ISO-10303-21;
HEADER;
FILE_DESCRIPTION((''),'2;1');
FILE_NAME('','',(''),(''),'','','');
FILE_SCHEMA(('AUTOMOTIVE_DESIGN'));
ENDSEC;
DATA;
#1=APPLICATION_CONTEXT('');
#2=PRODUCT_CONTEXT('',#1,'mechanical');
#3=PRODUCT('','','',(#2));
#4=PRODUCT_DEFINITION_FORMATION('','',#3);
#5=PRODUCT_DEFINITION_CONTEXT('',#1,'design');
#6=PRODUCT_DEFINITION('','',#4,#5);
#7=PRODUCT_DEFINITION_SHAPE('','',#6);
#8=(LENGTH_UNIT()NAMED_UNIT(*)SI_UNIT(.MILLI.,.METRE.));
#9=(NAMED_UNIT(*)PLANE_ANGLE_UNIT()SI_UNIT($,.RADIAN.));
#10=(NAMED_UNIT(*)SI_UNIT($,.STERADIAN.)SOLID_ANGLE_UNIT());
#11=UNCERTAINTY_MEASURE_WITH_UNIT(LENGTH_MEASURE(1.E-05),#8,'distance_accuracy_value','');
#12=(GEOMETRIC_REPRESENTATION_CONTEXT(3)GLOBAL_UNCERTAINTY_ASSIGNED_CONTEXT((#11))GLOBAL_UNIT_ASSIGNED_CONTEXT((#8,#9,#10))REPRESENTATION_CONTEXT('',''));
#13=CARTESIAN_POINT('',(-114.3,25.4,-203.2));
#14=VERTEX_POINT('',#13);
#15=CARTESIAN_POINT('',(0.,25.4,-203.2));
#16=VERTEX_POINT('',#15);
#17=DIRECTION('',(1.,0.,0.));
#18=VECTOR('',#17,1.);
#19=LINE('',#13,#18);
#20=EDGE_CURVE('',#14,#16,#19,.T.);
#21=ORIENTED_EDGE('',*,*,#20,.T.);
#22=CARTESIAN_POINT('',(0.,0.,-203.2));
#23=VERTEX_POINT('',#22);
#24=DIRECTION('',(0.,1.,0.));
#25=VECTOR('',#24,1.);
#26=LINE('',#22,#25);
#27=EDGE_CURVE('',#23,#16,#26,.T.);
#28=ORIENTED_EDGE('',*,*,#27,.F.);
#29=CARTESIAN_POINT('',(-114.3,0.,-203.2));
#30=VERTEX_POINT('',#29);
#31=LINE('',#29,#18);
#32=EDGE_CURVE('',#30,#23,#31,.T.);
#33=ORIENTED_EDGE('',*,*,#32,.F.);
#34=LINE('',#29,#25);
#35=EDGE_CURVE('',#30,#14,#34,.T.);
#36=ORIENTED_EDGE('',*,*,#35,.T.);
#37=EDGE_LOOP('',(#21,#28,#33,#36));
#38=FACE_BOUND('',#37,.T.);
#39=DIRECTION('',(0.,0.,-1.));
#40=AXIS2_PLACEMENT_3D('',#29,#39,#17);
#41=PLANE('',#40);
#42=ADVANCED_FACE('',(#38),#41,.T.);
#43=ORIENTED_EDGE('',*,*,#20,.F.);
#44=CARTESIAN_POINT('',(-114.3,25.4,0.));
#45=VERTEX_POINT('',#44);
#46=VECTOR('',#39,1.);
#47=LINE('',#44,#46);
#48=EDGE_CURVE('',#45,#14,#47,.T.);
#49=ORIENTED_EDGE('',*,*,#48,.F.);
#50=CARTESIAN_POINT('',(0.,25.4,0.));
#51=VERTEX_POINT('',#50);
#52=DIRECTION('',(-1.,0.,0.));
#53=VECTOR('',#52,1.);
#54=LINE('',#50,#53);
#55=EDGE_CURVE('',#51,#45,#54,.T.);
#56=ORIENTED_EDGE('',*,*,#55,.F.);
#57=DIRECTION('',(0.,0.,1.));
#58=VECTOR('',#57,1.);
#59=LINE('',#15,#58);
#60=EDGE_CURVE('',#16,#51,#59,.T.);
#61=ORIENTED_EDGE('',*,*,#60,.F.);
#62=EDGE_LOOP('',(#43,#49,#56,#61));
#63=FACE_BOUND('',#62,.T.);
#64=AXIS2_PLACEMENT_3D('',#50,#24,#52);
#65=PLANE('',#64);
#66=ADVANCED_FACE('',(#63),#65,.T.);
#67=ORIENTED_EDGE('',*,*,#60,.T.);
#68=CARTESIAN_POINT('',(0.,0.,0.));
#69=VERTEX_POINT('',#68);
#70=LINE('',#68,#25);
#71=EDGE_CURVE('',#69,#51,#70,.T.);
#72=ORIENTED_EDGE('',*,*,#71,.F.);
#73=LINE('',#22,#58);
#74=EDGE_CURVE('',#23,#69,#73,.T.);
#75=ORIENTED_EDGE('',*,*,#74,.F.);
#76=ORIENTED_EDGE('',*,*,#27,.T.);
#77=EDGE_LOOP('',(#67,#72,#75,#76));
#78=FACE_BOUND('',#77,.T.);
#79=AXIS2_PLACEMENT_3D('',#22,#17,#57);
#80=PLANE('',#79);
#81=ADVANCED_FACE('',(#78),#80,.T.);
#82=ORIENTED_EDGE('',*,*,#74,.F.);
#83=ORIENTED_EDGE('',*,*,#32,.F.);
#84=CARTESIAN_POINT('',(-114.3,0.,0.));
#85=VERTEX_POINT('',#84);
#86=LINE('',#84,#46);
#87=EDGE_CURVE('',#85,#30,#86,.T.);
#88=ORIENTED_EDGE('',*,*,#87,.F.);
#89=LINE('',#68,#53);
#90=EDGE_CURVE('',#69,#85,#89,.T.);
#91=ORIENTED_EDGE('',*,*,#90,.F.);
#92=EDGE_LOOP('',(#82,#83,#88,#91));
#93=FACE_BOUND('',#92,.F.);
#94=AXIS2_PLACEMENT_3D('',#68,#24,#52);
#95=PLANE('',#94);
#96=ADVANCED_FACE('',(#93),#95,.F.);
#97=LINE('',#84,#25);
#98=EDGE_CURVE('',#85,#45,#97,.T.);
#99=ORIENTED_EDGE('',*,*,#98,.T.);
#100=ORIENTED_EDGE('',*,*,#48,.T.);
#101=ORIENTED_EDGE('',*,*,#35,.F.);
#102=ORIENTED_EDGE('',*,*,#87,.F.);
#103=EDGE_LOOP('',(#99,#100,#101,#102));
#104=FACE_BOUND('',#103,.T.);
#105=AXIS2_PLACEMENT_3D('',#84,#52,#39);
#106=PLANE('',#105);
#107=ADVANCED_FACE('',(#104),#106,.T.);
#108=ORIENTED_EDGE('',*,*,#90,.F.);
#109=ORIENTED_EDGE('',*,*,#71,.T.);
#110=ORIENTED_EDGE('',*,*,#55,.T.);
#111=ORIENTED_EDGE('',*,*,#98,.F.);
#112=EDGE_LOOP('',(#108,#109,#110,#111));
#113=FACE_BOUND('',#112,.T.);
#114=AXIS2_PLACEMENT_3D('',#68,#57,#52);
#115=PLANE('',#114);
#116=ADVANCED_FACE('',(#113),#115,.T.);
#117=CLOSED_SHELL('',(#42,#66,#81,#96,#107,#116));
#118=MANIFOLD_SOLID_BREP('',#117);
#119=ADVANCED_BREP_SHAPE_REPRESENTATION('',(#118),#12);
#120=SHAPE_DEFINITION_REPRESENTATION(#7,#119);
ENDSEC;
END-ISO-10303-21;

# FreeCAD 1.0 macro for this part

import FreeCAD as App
import Part
import Sketcher

V = App.Vector
Q = App.Units.Quantity

doc = App.newDocument("Part")
body = doc.addObject("PartDesign::Body", "Body")

# Sketch on XZ plane
sketch1 = doc.addObject("Sketcher::SketchObject", "Sketch")
body.addObject(sketch1)
sketch1.AttachmentSupport = (doc.XZ_Plane, [""])
sketch1.MapMode = "FlatFace"
sketch1.addGeometry([
    Part.LineSegment(V(-114, 0, 0), V(0, 0, 0)),
    Part.LineSegment(V(0, 0, 0), V(0, -203, 0)),
    Part.LineSegment(V(0, -203, 0), V(-114, -203, 0)),
    Part.LineSegment(V(-114, -203, 0), V(-114, 0, 0)),
], False)
sketch1.addConstraint([
    Sketcher.Constraint("Coincident", 0, 2, 1, 1),
    Sketcher.Constraint("Coincident", 1, 2, 2, 1),
    Sketcher.Constraint("Coincident", 2, 2, 3, 1),
    Sketcher.Constraint("Coincident", 3, 2, 0, 1),
    Sketcher.Constraint("Horizontal", 0),
    Sketcher.Constraint("Vertical", 1),
    Sketcher.Constraint("Horizontal", 2),
    Sketcher.Constraint("Vertical", 3),
    Sketcher.Constraint("Coincident", 0, 2, -1, 1),
    Sketcher.Constraint("DistanceY", 1, 2, 1, 1, Q("8 in")),
    Sketcher.Constraint("DistanceX", 0, 1, 0, 2, Q("4.5 in")),
])
pad1 = doc.addObject("PartDesign::Pad", "Pad")
body.addObject(pad1)
pad1.Profile = sketch1
pad1.Length = Q("1 in")
pad1.Reversed = True

doc.recompute()
